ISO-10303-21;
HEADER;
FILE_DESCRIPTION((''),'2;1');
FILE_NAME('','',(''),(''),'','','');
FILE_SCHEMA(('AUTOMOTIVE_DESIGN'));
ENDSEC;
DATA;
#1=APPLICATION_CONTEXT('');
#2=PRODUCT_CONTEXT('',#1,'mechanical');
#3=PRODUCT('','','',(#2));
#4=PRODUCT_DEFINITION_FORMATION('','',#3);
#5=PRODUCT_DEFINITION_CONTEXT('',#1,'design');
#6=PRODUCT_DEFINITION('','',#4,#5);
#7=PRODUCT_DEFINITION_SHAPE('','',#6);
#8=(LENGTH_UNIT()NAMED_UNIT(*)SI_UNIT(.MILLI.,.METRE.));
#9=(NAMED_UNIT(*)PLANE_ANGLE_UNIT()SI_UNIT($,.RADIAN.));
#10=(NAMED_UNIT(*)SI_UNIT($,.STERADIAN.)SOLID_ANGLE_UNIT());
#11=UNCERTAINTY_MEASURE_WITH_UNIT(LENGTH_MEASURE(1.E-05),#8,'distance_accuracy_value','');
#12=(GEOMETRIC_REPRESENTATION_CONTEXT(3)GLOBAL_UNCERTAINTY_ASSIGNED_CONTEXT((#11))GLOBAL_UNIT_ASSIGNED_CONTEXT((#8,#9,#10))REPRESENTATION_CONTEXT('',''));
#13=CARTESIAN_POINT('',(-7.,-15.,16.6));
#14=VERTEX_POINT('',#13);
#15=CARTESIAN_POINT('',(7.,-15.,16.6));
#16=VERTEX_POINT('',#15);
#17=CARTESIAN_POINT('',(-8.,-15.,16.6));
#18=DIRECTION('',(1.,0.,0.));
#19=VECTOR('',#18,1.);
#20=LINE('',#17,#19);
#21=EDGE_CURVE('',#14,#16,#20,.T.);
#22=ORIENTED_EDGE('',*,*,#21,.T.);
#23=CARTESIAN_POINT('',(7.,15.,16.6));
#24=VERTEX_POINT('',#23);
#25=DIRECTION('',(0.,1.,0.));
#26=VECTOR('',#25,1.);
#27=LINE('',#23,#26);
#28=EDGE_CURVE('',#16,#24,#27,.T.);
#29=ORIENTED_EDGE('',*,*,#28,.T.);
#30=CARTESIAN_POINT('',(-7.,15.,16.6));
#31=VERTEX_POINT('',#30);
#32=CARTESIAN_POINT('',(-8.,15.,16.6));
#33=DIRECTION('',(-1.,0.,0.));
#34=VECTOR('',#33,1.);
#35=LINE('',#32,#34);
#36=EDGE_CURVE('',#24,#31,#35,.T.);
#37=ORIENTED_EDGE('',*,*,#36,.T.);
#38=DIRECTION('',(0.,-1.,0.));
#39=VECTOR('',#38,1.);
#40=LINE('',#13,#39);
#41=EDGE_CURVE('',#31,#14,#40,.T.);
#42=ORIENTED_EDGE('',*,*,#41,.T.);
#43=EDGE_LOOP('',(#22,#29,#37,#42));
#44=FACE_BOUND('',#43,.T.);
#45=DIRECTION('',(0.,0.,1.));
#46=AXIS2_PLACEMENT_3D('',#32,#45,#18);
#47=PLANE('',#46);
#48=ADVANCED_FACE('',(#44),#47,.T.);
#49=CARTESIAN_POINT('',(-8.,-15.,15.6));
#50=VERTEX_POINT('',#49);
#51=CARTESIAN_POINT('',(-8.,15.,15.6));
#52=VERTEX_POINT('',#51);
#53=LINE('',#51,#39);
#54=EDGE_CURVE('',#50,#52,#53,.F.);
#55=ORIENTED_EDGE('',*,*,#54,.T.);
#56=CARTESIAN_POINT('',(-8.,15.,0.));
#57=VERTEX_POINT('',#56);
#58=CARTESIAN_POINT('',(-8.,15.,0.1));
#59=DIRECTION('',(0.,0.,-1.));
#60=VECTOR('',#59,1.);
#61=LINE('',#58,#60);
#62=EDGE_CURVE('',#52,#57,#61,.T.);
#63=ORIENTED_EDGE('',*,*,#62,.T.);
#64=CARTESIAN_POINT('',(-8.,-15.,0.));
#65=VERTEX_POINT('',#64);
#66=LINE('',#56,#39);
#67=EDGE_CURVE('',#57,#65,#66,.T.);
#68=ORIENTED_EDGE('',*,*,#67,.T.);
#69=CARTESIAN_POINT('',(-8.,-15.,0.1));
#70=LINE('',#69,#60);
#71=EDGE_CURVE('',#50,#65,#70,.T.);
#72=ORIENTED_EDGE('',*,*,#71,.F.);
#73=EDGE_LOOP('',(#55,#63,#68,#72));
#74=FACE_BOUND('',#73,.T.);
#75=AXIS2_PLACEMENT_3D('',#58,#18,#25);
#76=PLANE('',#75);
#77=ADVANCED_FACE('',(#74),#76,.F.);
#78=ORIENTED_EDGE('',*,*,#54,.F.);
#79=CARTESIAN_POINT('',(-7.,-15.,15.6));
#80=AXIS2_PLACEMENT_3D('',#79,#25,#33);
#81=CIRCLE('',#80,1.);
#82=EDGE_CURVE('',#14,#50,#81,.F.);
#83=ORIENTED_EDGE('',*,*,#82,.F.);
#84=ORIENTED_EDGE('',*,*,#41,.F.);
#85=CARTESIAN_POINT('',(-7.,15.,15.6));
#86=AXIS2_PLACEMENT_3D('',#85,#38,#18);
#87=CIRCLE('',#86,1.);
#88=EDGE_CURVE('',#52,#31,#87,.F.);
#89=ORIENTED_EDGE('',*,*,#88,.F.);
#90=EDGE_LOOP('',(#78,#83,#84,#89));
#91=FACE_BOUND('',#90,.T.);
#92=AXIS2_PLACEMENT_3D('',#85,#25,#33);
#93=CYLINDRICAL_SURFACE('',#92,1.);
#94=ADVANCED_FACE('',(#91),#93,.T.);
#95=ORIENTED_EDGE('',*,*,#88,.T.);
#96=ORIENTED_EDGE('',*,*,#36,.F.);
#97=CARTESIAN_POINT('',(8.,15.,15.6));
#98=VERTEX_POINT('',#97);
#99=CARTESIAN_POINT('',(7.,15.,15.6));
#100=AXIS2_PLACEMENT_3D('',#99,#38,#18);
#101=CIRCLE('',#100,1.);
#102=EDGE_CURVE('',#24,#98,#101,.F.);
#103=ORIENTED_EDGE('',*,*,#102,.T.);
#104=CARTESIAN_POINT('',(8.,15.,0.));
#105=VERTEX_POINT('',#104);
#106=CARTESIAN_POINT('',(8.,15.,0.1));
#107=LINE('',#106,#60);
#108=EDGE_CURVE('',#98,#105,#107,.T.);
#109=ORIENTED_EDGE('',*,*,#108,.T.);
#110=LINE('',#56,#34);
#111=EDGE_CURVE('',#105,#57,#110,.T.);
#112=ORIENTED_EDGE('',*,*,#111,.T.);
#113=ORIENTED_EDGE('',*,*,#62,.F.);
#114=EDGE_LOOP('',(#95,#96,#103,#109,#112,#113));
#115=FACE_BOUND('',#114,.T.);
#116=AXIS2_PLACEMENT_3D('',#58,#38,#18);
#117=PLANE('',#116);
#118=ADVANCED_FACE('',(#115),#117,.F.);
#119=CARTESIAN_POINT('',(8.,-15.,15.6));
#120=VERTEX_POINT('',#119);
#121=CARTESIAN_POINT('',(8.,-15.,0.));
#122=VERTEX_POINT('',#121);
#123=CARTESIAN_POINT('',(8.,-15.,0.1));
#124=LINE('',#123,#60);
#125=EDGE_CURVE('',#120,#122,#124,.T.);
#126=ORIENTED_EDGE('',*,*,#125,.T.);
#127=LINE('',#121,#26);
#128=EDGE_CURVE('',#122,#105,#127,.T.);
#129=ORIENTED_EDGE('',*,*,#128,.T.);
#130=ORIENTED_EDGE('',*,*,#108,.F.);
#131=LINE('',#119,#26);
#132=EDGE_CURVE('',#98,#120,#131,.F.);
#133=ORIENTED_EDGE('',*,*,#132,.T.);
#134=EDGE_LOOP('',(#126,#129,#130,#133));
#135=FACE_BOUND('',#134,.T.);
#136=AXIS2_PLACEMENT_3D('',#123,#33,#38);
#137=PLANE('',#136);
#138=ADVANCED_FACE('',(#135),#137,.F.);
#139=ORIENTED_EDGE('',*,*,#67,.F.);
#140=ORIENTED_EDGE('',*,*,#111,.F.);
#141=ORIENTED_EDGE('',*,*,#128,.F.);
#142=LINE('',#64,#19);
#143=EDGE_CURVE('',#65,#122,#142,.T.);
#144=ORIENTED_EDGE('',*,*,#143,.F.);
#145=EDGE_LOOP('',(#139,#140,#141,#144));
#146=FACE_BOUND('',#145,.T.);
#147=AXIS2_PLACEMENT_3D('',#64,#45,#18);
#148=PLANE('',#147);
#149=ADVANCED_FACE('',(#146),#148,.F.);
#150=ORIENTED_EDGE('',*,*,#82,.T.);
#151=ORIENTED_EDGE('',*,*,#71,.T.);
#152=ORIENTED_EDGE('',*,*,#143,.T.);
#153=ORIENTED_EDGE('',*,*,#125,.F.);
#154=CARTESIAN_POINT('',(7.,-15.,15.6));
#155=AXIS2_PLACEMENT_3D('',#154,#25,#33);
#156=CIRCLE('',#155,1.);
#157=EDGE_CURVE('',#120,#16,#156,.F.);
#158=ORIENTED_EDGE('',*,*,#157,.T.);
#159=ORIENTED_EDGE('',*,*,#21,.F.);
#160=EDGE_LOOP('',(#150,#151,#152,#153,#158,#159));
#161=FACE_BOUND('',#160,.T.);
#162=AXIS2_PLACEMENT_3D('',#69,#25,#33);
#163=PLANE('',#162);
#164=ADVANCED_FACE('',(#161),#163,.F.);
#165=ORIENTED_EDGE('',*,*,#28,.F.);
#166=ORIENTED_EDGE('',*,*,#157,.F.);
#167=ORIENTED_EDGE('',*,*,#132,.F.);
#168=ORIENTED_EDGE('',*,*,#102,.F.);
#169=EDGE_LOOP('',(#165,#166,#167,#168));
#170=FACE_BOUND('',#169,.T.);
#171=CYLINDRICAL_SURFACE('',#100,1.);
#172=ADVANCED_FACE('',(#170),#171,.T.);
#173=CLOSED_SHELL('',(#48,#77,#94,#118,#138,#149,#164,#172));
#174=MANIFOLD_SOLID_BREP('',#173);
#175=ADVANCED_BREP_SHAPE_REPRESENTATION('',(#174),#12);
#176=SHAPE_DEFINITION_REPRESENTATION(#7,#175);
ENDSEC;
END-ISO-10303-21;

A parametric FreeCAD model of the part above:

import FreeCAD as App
import Part
import Sketcher
Q = App.Units.Quantity


def edges_at(feature, points):
    """Names of the edges that pass closest to the given points."""
    edges = feature.Shape.Edges
    near = lambda p: min(range(len(edges)), key=lambda i: edges[i].distToShape(Part.Vertex(*p))[0])
    return sorted({f"Edge{near(p) + 1}" for p in points})

doc = App.newDocument("Part")
body = doc.addObject("PartDesign::Body", "Body")

# Sketch on XY plane
sketch1 = doc.addObject("Sketcher::SketchObject", "Sketch")
body.addObject(sketch1)
sketch1.AttachmentSupport = (doc.XY_Plane, [""])
sketch1.MapMode = "FlatFace"
sketch1.addGeometry(Part.LineSegment(App.Vector(-8, 15, 0), App.Vector(-8, -15, 0)), False)
sketch1.addGeometry(Part.LineSegment(App.Vector(-8, -15, 0), App.Vector(8, -15, 0)), False)
sketch1.addGeometry(Part.LineSegment(App.Vector(8, -15, 0), App.Vector(8, 15, 0)), False)
sketch1.addGeometry(Part.LineSegment(App.Vector(8, 15, 0), App.Vector(-8, 15, 0)), False)
sketch1.addConstraint(Sketcher.Constraint("Coincident", 0, 2, 1, 1))
sketch1.addConstraint(Sketcher.Constraint("Coincident", 1, 2, 2, 1))
sketch1.addConstraint(Sketcher.Constraint("Coincident", 2, 2, 3, 1))
sketch1.addConstraint(Sketcher.Constraint("Coincident", 3, 2, 0, 1))
sketch1.addConstraint(Sketcher.Constraint("Vertical", 0))
sketch1.addConstraint(Sketcher.Constraint("Horizontal", 1))
sketch1.addConstraint(Sketcher.Constraint("Vertical", 2))
sketch1.addConstraint(Sketcher.Constraint("Horizontal", 3))
sketch1.addConstraint(Sketcher.Constraint("Symmetric", 0, 2, 2, 2, -1, 1))
sketch1.addConstraint(Sketcher.Constraint("DistanceX", 1, 1, 1, 2, Q("16 mm")))
sketch1.addConstraint(Sketcher.Constraint("DistanceY", 0, 2, 0, 1, Q("30 mm")))
pad1 = doc.addObject("PartDesign::Pad", "Pad")
body.addObject(pad1)
pad1.Profile = sketch1
pad1.Length = 0.1

# Sketch on XY plane
sketch2 = doc.addObject("Sketcher::SketchObject", "Sketch001")
body.addObject(sketch2)
sketch2.AttachmentSupport = (doc.XY_Plane, [""])
sketch2.MapMode = "FlatFace"
sketch2.AttachmentOffset = App.Placement(App.Vector(0, 0, 0.1), App.Rotation())
sketch2.addGeometry(Part.LineSegment(App.Vector(-8, 15, 0), App.Vector(-8, -15, 0)), False)
sketch2.addGeometry(Part.LineSegment(App.Vector(-8, -15, 0), App.Vector(8, -15, 0)), False)
sketch2.addGeometry(Part.LineSegment(App.Vector(8, -15, 0), App.Vector(8, 15, 0)), False)
sketch2.addGeometry(Part.LineSegment(App.Vector(8, 15, 0), App.Vector(-8, 15, 0)), False)
sketch2.addConstraint(Sketcher.Constraint("Coincident", 0, 2, 1, 1))
sketch2.addConstraint(Sketcher.Constraint("Coincident", 1, 2, 2, 1))
sketch2.addConstraint(Sketcher.Constraint("Coincident", 2, 2, 3, 1))
sketch2.addConstraint(Sketcher.Constraint("Coincident", 3, 2, 0, 1))
sketch2.addConstraint(Sketcher.Constraint("Vertical", 0))
sketch2.addConstraint(Sketcher.Constraint("Horizontal", 1))
sketch2.addConstraint(Sketcher.Constraint("Vertical", 2))
sketch2.addConstraint(Sketcher.Constraint("Horizontal", 3))
sketch2.addConstraint(Sketcher.Constraint("Symmetric", 0, 2, 2, 2, -1, 1))
sketch2.addConstraint(Sketcher.Constraint("DistanceX", 1, 1, 1, 2, Q("16 mm")))
sketch2.addConstraint(Sketcher.Constraint("DistanceY", 0, 2, 0, 1, Q("30 mm")))
pad2 = doc.addObject("PartDesign::Pad", "Pad001")
body.addObject(pad2)
pad2.Profile = sketch2
pad2.Length = 16.5
doc.recompute()

fillet = doc.addObject("PartDesign::Fillet", "Fillet")
body.addObject(fillet)
fillet.Base = (pad2, edges_at(pad2, [(-8, 0, 16.6), (8, 0, 16.6)]))
fillet.Radius = 1

doc.recompute()
